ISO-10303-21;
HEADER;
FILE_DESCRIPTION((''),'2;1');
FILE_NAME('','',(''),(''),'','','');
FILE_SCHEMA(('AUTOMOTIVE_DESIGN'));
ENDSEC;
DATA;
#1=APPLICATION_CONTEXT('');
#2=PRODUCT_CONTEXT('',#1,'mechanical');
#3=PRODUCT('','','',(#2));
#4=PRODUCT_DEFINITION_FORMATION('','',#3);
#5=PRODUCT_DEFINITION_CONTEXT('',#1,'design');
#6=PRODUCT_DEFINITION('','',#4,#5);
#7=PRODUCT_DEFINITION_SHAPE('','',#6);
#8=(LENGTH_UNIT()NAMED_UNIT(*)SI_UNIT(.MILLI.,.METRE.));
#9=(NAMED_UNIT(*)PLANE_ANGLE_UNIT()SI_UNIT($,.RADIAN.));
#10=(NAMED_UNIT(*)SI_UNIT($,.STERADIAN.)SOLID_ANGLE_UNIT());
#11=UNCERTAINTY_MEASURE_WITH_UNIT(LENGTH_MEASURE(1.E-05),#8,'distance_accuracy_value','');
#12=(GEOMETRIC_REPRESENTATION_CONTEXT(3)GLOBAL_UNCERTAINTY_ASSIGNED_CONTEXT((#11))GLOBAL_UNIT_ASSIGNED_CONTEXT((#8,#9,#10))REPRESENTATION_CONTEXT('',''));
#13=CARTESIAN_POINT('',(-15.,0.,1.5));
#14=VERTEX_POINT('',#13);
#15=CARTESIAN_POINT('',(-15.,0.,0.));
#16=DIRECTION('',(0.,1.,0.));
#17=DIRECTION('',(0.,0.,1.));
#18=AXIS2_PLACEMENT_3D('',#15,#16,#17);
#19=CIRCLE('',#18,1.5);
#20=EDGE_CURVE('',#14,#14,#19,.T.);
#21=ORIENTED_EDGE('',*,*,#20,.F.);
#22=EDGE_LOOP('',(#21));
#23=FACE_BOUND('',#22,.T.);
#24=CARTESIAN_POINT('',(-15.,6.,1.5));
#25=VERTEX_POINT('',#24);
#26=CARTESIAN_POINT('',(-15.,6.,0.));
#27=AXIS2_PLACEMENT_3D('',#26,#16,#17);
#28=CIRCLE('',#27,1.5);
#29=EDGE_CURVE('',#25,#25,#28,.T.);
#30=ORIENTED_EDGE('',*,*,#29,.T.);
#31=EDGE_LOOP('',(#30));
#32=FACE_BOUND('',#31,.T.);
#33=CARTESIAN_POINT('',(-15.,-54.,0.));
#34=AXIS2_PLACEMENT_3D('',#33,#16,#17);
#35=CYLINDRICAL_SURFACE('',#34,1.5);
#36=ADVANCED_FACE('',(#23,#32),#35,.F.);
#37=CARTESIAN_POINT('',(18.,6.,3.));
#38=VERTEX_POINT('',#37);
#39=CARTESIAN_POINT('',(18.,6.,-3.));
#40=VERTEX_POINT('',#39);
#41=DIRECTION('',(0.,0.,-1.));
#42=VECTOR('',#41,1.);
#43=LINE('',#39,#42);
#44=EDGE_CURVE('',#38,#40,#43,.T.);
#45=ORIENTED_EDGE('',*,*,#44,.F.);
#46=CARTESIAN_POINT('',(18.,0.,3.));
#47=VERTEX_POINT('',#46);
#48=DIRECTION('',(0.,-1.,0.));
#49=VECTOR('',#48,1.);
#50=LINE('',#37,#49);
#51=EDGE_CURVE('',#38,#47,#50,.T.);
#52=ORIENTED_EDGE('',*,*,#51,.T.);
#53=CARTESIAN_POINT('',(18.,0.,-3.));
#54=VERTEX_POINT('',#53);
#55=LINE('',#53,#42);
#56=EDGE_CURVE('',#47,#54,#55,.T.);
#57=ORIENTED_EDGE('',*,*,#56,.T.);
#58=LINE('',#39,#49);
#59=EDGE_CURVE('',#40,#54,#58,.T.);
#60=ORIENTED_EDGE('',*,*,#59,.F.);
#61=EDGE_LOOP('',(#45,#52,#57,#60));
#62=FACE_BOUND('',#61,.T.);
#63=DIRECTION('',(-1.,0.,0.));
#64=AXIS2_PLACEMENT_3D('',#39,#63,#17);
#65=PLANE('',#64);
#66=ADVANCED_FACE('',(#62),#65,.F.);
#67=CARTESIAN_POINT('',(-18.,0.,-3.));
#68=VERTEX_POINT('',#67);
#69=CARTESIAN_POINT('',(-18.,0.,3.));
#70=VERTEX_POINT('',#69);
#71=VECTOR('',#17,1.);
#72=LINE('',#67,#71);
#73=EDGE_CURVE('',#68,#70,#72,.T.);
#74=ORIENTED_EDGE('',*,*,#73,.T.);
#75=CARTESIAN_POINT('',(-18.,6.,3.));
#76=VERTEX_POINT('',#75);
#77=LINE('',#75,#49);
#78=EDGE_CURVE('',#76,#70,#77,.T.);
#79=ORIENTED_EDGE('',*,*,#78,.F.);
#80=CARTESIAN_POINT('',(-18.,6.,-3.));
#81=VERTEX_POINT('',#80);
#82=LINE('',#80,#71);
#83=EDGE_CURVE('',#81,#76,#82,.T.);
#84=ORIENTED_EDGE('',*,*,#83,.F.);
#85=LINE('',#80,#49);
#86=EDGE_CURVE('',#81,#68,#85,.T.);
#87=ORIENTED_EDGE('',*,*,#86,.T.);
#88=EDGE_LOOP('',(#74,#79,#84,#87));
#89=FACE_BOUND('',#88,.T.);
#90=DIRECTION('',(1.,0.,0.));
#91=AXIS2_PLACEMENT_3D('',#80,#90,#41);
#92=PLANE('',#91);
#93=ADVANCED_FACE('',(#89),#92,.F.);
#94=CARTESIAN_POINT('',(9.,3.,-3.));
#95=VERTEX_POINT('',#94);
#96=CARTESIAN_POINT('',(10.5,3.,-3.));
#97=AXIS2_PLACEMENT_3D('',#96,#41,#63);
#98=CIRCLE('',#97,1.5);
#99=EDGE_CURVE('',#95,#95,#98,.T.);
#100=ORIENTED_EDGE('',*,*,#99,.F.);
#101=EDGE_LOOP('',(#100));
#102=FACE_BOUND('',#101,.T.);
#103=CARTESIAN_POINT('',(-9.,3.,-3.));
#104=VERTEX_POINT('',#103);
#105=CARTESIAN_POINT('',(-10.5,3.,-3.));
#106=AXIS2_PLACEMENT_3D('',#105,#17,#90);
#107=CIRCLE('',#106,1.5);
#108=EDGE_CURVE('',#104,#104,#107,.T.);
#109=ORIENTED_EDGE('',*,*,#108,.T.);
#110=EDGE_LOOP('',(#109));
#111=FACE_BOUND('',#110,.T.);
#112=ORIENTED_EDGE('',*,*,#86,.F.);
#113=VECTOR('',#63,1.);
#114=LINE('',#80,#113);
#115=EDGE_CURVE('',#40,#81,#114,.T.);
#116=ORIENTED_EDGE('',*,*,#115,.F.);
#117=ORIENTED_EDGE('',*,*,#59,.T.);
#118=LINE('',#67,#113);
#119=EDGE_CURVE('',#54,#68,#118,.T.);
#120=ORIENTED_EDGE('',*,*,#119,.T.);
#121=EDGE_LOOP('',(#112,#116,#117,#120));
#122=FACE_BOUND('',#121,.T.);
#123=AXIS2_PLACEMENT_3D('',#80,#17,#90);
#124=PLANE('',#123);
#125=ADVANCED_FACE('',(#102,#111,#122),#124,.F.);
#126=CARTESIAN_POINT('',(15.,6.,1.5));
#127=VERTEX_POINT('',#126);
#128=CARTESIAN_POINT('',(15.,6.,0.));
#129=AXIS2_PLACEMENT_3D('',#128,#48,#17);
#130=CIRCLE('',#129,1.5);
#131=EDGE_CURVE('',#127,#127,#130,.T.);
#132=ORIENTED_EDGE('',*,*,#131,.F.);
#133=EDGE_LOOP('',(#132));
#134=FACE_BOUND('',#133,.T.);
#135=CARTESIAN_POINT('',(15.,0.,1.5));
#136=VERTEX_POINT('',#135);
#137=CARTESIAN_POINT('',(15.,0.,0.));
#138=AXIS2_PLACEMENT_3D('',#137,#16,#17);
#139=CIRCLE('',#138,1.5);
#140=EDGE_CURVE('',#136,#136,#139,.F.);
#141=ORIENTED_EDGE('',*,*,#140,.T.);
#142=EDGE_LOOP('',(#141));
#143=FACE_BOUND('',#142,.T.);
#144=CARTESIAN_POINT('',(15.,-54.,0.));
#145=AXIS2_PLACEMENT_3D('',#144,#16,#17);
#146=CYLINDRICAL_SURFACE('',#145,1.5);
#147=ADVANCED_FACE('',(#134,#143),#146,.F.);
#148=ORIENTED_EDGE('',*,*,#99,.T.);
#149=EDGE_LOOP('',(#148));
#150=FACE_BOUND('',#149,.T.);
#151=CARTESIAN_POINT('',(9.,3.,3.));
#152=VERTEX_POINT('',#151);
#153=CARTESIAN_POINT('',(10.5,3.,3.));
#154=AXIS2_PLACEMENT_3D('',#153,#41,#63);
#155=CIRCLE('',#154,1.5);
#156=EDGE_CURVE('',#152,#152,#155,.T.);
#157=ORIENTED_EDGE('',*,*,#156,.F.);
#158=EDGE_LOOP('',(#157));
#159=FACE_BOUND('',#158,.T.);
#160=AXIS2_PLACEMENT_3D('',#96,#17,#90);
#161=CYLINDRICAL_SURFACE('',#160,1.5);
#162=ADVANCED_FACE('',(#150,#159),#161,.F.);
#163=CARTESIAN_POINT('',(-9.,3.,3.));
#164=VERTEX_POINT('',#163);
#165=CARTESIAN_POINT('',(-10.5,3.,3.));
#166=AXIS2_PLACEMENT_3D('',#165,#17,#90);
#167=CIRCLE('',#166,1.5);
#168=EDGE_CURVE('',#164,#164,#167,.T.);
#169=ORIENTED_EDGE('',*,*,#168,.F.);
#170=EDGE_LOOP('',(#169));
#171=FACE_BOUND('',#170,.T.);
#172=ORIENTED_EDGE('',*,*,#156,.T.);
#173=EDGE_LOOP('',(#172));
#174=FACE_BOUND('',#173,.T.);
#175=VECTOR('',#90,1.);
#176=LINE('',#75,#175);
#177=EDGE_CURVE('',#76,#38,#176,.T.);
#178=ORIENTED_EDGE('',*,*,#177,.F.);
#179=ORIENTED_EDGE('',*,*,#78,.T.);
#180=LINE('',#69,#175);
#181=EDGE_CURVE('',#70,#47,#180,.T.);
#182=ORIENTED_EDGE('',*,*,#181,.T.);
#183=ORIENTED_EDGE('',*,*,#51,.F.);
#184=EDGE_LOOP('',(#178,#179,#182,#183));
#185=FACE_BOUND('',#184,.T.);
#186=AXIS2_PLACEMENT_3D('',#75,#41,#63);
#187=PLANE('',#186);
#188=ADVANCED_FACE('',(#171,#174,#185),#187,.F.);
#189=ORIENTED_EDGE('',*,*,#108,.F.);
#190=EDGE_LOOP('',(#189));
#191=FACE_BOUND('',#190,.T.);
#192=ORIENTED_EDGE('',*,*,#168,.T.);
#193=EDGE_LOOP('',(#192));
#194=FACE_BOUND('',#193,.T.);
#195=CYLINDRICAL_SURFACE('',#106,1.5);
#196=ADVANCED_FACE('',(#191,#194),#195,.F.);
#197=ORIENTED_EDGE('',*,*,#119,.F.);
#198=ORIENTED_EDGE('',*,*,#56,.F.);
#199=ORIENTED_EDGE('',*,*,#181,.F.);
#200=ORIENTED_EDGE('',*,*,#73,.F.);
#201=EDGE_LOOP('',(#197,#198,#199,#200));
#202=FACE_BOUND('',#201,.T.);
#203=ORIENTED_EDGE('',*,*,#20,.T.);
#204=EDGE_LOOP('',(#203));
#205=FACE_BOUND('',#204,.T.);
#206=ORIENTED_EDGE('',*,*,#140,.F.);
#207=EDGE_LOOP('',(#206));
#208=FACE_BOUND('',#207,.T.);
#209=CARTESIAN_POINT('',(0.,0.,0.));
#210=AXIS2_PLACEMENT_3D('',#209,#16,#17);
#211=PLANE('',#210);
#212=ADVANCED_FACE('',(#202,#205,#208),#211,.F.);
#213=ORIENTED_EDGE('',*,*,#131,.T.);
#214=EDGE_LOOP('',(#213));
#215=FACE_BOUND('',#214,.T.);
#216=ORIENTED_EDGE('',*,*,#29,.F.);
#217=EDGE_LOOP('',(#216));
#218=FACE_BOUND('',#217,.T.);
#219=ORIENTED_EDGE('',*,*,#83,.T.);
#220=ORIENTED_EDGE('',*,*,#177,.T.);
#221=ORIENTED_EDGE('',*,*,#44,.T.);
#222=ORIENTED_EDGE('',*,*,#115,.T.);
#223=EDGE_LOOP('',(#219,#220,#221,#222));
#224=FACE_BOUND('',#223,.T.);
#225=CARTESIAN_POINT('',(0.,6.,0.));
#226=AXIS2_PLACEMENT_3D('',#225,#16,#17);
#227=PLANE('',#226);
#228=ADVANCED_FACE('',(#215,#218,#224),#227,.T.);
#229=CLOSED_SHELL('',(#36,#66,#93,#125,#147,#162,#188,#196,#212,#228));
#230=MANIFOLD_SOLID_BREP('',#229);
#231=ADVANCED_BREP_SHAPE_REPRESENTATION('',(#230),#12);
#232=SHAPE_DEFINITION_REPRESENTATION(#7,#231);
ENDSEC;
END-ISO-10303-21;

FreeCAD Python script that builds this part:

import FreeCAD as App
import Part
import Sketcher


def add_polygon(sketch, points):
    """Adds a closed chain of lines whose ends are joined by coincident constraints."""
    first, n = sketch.GeometryCount, len(points)
    for a, b in zip(points, points[1:] + points[:1]):
        sketch.addGeometry(Part.LineSegment(App.Vector(*a, 0), App.Vector(*b, 0)), False)
    for i in range(n):
        sketch.addConstraint(Sketcher.Constraint("Coincident", first + i, 2, first + (i + 1) % n, 1))

doc = App.newDocument("Part")
params = doc.addObject("Spreadsheet::Sheet", "Params")
for row, (alias, value) in enumerate([
    ("sketch1_width", "36 mm"),
    ("sketch1_height", "6 mm"),
    ("pad1_length", "6 mm"),
    ("sketch2_diameter", "3 mm"),
    ("pocket1_length", "60 mm"),
    ("sketch3_diameter", "3 mm"),
    ("pocket2_length", "6 mm"),
], start=1):
    params.set(f"A{row}", alias)
    params.set(f"B{row}", "=" + value)
    params.setAlias(f"B{row}", alias)

body = doc.addObject("PartDesign::Body", "Body")

# Sketch on XZ plane
sketch1 = doc.addObject("Sketcher::SketchObject", "Sketch")
body.addObject(sketch1)
sketch1.AttachmentSupport = (doc.XZ_Plane, [""])
sketch1.MapMode = "FlatFace"
add_polygon(sketch1, [(-18, -3), (-18, 3), (18, 3), (18, -3)])  # lines 0-3
sketch1.addConstraint([
    Sketcher.Constraint("Vertical", 0),
    Sketcher.Constraint("Horizontal", 1),
    Sketcher.Constraint("Vertical", 2),
    Sketcher.Constraint("Horizontal", 3),
    Sketcher.Constraint("Symmetric", 0, 2, 2, 2, -1, 1),
    Sketcher.Constraint("DistanceX", 1, 1, 1, 2, 36.0),
    Sketcher.Constraint("DistanceY", 0, 1, 0, 2, 6.0),
])
sketch1.setExpression("Constraints[9]", "Params.sketch1_width")
sketch1.setExpression("Constraints[10]", "Params.sketch1_height")
pad1 = doc.addObject("PartDesign::Pad", "Pad")
body.addObject(pad1)
pad1.Profile = sketch1
pad1.setExpression("Length", "Params.pad1_length")
pad1.Reversed = True

# Sketch on XZ plane
sketch2 = doc.addObject("Sketcher::SketchObject", "Sketch001")
body.addObject(sketch2)
sketch2.AttachmentSupport = (doc.XZ_Plane, [""])
sketch2.MapMode = "FlatFace"
sketch2.AttachmentOffset = App.Placement(App.Vector(0, 0, -6), App.Rotation())
sketch2.addGeometry(Part.Circle(App.Vector(-15, 0, 0), App.Vector(0, 0, 1), 1.5), False)
sketch2.addConstraint([
    Sketcher.Constraint("PointOnObject", 0, 3, -1),
    Sketcher.Constraint("Diameter", 0, 3.0),
    Sketcher.Constraint("DistanceX", 0, 3, -1, 1, 15.0),
])
sketch2.setExpression("Constraints[1]", "Params.sketch2_diameter")
pocket1 = doc.addObject("PartDesign::Pocket", "Pocket")
body.addObject(pocket1)
pocket1.Profile = sketch2
pocket1.setExpression("Length", "Params.pocket1_length")
pocket1.Reversed = True
doc.recompute()

mirrored = doc.addObject("PartDesign::Mirrored", "Mirrored")
body.addObject(mirrored)
mirrored.Originals = [pocket1]
mirrored.MirrorPlane = (doc.YZ_Plane, [""])
body.Tip = mirrored

# Sketch on XY plane
sketch3 = doc.addObject("Sketcher::SketchObject", "Sketch002")
body.addObject(sketch3)
sketch3.AttachmentSupport = (doc.XY_Plane, [""])
sketch3.MapMode = "FlatFace"
sketch3.AttachmentOffset = App.Placement(App.Vector(0, 0, 3), App.Rotation())
sketch3.addGeometry(Part.Circle(App.Vector(-10.5, 3, 0), App.Vector(0, 0, 1), 1.5), False)
sketch3.addConstraint([
    Sketcher.Constraint("Diameter", 0, 3.0),
    Sketcher.Constraint("DistanceY", -1, 1, 0, 3, 3.0),
    Sketcher.Constraint("DistanceX", 0, 3, -1, 1, 10.5),
])
sketch3.setExpression("Constraints[0]", "Params.sketch3_diameter")
pocket2 = doc.addObject("PartDesign::Pocket", "Pocket001")
body.addObject(pocket2)
pocket2.Profile = sketch3
pocket2.setExpression("Length", "Params.pocket2_length")
doc.recompute()

mirrored2 = doc.addObject("PartDesign::Mirrored", "Mirrored001")
body.addObject(mirrored2)
mirrored2.Originals = [pocket2]
mirrored2.MirrorPlane = (doc.YZ_Plane, [""])
body.Tip = mirrored2

doc.recompute()
